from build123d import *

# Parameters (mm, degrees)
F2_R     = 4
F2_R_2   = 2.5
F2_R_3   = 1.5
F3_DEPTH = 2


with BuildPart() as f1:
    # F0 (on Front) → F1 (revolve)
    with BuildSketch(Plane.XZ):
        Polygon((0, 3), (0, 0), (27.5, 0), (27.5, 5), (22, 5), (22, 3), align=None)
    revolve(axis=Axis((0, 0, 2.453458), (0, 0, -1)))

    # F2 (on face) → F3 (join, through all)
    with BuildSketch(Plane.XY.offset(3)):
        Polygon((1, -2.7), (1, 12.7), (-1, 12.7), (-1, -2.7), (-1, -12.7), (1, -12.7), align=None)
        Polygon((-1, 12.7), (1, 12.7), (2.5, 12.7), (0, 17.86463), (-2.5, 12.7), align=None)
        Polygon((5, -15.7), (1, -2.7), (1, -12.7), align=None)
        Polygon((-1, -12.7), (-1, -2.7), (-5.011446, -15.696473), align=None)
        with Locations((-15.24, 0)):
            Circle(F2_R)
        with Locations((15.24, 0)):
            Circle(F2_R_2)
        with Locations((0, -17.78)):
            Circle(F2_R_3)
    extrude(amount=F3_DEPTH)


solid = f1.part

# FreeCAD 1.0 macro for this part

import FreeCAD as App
import Part
import Sketcher
from FreeCAD import Vector
Q = App.Units.Quantity

doc = App.newDocument("Part")
body = doc.addObject("PartDesign::Body", "Body")

# Sketch on XZ plane
sketch1 = body.newObject("Sketcher::SketchObject", "Sketch")
sketch1.AttachmentSupport = (doc.getObject("XZ_Plane"), [""])
sketch1.MapMode = "FlatFace"
sketch1.addGeometry(Part.LineSegment(Vector(0, 3, 0), Vector(0, 0, 0)), False)
sketch1.addGeometry(Part.LineSegment(Vector(0, 0, 0), Vector(27.5, 0, 0)), False)
sketch1.addGeometry(Part.LineSegment(Vector(27.5, 0, 0), Vector(27.5, 5, 0)), False)
sketch1.addGeometry(Part.LineSegment(Vector(27.5, 5, 0), Vector(22, 5, 0)), False)
sketch1.addGeometry(Part.LineSegment(Vector(22, 5, 0), Vector(22, 3, 0)), False)
sketch1.addGeometry(Part.LineSegment(Vector(22, 3, 0), Vector(0, 3, 0)), False)
sketch1.addConstraint(Sketcher.Constraint("Coincident", 0, 2, 1, 1))
sketch1.addConstraint(Sketcher.Constraint("Coincident", 1, 2, 2, 1))
sketch1.addConstraint(Sketcher.Constraint("Coincident", 2, 2, 3, 1))
sketch1.addConstraint(Sketcher.Constraint("Coincident", 3, 2, 4, 1))
sketch1.addConstraint(Sketcher.Constraint("Coincident", 4, 2, 5, 1))
sketch1.addConstraint(Sketcher.Constraint("Coincident", 5, 2, 0, 1))
sketch1.addConstraint(Sketcher.Constraint("Vertical", 0))
sketch1.addConstraint(Sketcher.Constraint("Horizontal", 1))
sketch1.addConstraint(Sketcher.Constraint("Vertical", 2))
sketch1.addConstraint(Sketcher.Constraint("Horizontal", 3))
sketch1.addConstraint(Sketcher.Constraint("Vertical", 4))
sketch1.addConstraint(Sketcher.Constraint("Horizontal", 5))
sketch1.addConstraint(Sketcher.Constraint("Coincident", 0, 2, -1, 1))
sketch1.addConstraint(Sketcher.Constraint("DistanceX", 5, 2, 5, 1, Q("22 mm")))
sketch1.addConstraint(Sketcher.Constraint("DistanceY", 0, 2, 0, 1, Q("3 mm")))
sketch1.addConstraint(Sketcher.Constraint("DistanceY", 2, 1, 2, 2, Q("5 mm")))
sketch1.addConstraint(Sketcher.Constraint("DistanceX", 1, 1, 1, 2, Q("27.5 mm")))
revolution = body.newObject("PartDesign::Revolution", "Revolution")
revolution.Profile = sketch1
revolution.ReferenceAxis = (sketch1, ["V_Axis"])
revolution.Angle = 360

# Sketch on XY plane
sketch2 = body.newObject("Sketcher::SketchObject", "Sketch001")
sketch2.AttachmentSupport = (doc.getObject("XY_Plane"), [""])
sketch2.MapMode = "FlatFace"
sketch2.AttachmentOffset = App.Placement(Vector(0, 0, 3), App.Rotation())
sketch2.addGeometry(Part.LineSegment(Vector(-1, 12.7, 0), Vector(-1, -2.7, 0)), False)
sketch2.addGeometry(Part.LineSegment(Vector(-1, -2.7, 0), Vector(-5, -15.7, 0)), False)
sketch2.addGeometry(Part.LineSegment(Vector(-5, -15.7, 0), Vector(-1, -12.7, 0)), False)
sketch2.addGeometry(Part.LineSegment(Vector(-1, -12.7, 0), Vector(1, -12.7, 0)), False)
sketch2.addGeometry(Part.LineSegment(Vector(1, -12.7, 0), Vector(5, -15.7, 0)), False)
sketch2.addGeometry(Part.LineSegment(Vector(5, -15.7, 0), Vector(1, -2.7, 0)), False)
sketch2.addGeometry(Part.LineSegment(Vector(1, -2.7, 0), Vector(1, 12.7, 0)), False)
sketch2.addGeometry(Part.LineSegment(Vector(1, 12.7, 0), Vector(2.5, 12.7, 0)), False)
sketch2.addGeometry(Part.LineSegment(Vector(2.5, 12.7, 0), Vector(0, 17.9, 0)), False)
sketch2.addGeometry(Part.LineSegment(Vector(0, 17.9, 0), Vector(-2.5, 12.7, 0)), False)
sketch2.addGeometry(Part.LineSegment(Vector(-2.5, 12.7, 0), Vector(-1, 12.7, 0)), False)
sketch2.addGeometry(Part.Circle(Vector(-15.2, 0, 0), Vector(0, 0, 1), 4), False)
sketch2.addGeometry(Part.Circle(Vector(15.2, 0, 0), Vector(0, 0, 1), 2.5), False)
sketch2.addGeometry(Part.Circle(Vector(0, -17.8, 0), Vector(0, 0, 1), 1.5), False)
sketch2.addConstraint(Sketcher.Constraint("Coincident", 0, 2, 1, 1))
sketch2.addConstraint(Sketcher.Constraint("Coincident", 1, 2, 2, 1))
sketch2.addConstraint(Sketcher.Constraint("Coincident", 2, 2, 3, 1))
sketch2.addConstraint(Sketcher.Constraint("Coincident", 3, 2, 4, 1))
sketch2.addConstraint(Sketcher.Constraint("Coincident", 4, 2, 5, 1))
sketch2.addConstraint(Sketcher.Constraint("Coincident", 5, 2, 6, 1))
sketch2.addConstraint(Sketcher.Constraint("Coincident", 6, 2, 7, 1))
sketch2.addConstraint(Sketcher.Constraint("Coincident", 7, 2, 8, 1))
sketch2.addConstraint(Sketcher.Constraint("Coincident", 8, 2, 9, 1))
sketch2.addConstraint(Sketcher.Constraint("Coincident", 9, 2, 10, 1))
sketch2.addConstraint(Sketcher.Constraint("Coincident", 10, 2, 0, 1))
sketch2.addConstraint(Sketcher.Constraint("Vertical", 0))
sketch2.addConstraint(Sketcher.Constraint("Horizontal", 3))
sketch2.addConstraint(Sketcher.Constraint("Vertical", 6))
sketch2.addConstraint(Sketcher.Constraint("Horizontal", 7))
sketch2.addConstraint(Sketcher.Constraint("Horizontal", 10))
sketch2.addConstraint(Sketcher.Constraint("Symmetric", 11, 3, 12, 3, -1, 1))
sketch2.addConstraint(Sketcher.Constraint("Symmetric", 2, 2, 6, 2, -1, 1))
sketch2.addConstraint(Sketcher.Constraint("Symmetric", 3, 2, 10, 2, -1, 1))
sketch2.addConstraint(Sketcher.Constraint("Symmetric", 0, 2, 5, 2, -2))
sketch2.addConstraint(Sketcher.Constraint("PointOnObject", 11, 3, -1))
sketch2.addConstraint(Sketcher.Constraint("PointOnObject", 13, 3, -2))
sketch2.addConstraint(Sketcher.Constraint("PointOnObject", 8, 2, -2))
sketch2.addConstraint(Sketcher.Constraint("Equal", 7, 10))
sketch2.addConstraint(Sketcher.Constraint("Equal", 1, 5))
sketch2.addConstraint(Sketcher.Constraint("Diameter", 11, Q("8 mm")))
sketch2.addConstraint(Sketcher.Constraint("Diameter", 12, Q("5 mm")))
sketch2.addConstraint(Sketcher.Constraint("Diameter", 13, Q("3 mm")))
sketch2.addConstraint(Sketcher.Constraint("DistanceX", 3, 1, 3, 2, Q("2 mm")))
sketch2.addConstraint(Sketcher.Constraint("Distance", 4, Q("5 mm")))
sketch2.addConstraint(Sketcher.Constraint("DistanceX", 7, 1, 7, 2, Q("1.5 mm")))
sketch2.addConstraint(Sketcher.Constraint("DistanceY", 0, 2, 0, 1, Q("15.4 mm")))
sketch2.addConstraint(Sketcher.Constraint("DistanceX", -1, 1, 4, 2, Q("5 mm")))
sketch2.addConstraint(Sketcher.Constraint("DistanceY", 2, 2, 0, 2, Q("10 mm")))
sketch2.addConstraint(Sketcher.Constraint("DistanceX", 11, 3, -1, 1, Q("15.24 mm")))
sketch2.addConstraint(Sketcher.Constraint("DistanceY", 13, 3, -1, 1, Q("17.78 mm")))
sketch2.addConstraint(Sketcher.Constraint("Distance", 2, Q("5.00705 mm")))
sketch2.addConstraint(Sketcher.Constraint("Distance", 8, Q("5.737892 mm")))
pad1 = body.newObject("PartDesign::Pad", "Pad")
pad1.Profile = sketch2
pad1.Length = 2

doc.recompute()
